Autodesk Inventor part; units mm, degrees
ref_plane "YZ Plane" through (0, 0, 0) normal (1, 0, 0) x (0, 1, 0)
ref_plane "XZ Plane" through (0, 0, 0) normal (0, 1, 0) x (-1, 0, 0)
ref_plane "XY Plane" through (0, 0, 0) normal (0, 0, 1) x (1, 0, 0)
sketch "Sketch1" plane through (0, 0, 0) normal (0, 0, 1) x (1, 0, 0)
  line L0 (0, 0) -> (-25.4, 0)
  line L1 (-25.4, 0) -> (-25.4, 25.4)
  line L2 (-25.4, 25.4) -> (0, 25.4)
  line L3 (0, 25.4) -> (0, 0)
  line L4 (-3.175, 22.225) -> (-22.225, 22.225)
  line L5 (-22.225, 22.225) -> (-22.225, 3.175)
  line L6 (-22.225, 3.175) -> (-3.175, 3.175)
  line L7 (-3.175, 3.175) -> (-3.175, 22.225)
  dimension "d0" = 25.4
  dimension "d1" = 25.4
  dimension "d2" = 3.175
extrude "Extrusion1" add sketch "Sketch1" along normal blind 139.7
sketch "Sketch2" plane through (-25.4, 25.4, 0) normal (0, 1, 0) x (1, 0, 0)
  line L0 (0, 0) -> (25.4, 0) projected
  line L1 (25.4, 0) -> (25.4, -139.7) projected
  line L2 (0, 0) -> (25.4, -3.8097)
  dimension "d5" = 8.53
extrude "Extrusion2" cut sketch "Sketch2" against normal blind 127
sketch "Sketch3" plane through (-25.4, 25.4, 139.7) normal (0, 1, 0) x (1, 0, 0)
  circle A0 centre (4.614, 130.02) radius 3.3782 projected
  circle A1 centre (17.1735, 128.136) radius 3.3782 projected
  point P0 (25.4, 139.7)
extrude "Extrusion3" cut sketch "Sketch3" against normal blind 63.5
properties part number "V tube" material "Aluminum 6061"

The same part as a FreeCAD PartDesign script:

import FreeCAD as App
import Part
import Sketcher
Q = App.Units.Quantity


def add_polygon(sketch, points):
    """Adds a closed chain of lines whose ends are joined by coincident constraints."""
    first, n = sketch.GeometryCount, len(points)
    for a, b in zip(points, points[1:] + points[:1]):
        sketch.addGeometry(Part.LineSegment(App.Vector(*a, 0), App.Vector(*b, 0)), False)
    for i in range(n):
        sketch.addConstraint(Sketcher.Constraint("Coincident", first + i, 2, first + (i + 1) % n, 1))

doc = App.newDocument("Part")
body = doc.addObject("PartDesign::Body", "Body")

# Sketch on XY plane
sketch1 = body.newObject("Sketcher::SketchObject", "Sketch")
sketch1.AttachmentSupport = (doc.getObject("XY_Plane"), [""])
sketch1.MapMode = "FlatFace"
add_polygon(sketch1, [(-25, 0), (0, 0), (0, 25), (-25, 25)])  # lines 0-3
add_polygon(sketch1, [(-22, 22), (-3, 22), (-3, 3), (-22, 3)])  # lines 4-7
sketch1.addConstraint([
    Sketcher.Constraint("Horizontal", 0),
    Sketcher.Constraint("Vertical", 1),
    Sketcher.Constraint("Horizontal", 2),
    Sketcher.Constraint("Vertical", 3),
    Sketcher.Constraint("Horizontal", 4),
    Sketcher.Constraint("Vertical", 5),
    Sketcher.Constraint("Horizontal", 6),
    Sketcher.Constraint("Vertical", 7),
    Sketcher.Constraint("Coincident", 0, 2, -1, 1),
    Sketcher.Constraint("Equal", 2, 1),
    Sketcher.Constraint("Equal", 6, 5),
    Sketcher.Constraint("DistanceX", 0, 1, 0, 2, Q("1 in")),
    Sketcher.Constraint("DistanceX", 4, 2, -1, 1, Q("0.125 in")),
    Sketcher.Constraint("DistanceY", -1, 1, 5, 2, Q("0.125 in")),
    Sketcher.Constraint("DistanceY", 4, 2, 1, 2, Q("0.125 in")),
])
pad1 = body.newObject("PartDesign::Pad", "Pad")
pad1.Profile = sketch1
pad1.Length = Q("5.5 in")

# Sketch on XZ plane
sketch2 = body.newObject("Sketcher::SketchObject", "Sketch001")
sketch2.AttachmentSupport = (doc.getObject("XZ_Plane"), [""])
sketch2.MapMode = "FlatFace"
sketch2.AttachmentOffset = App.Placement(App.Vector(0, 0, -1 * 25.4), App.Rotation())
add_polygon(sketch2, [(0, 0), (-25.4, 0), (0, 3.8)])  # lines 0-2
sketch2.addConstraint([
    Sketcher.Constraint("Horizontal", 0),
    Sketcher.Constraint("Vertical", 2),
    Sketcher.Constraint("Coincident", 2, 2, -1, 1),
    Sketcher.Constraint("DistanceX", 0, 2, 0, 1, Q("1 in")),
    Sketcher.Constraint("Angle", 1, Q("8.53 deg")),
])
pocket1 = body.newObject("PartDesign::Pocket", "Pocket")
pocket1.Profile = sketch2
pocket1.Length = Q("5 in")
pocket1.Reversed = True

# Sketch on XZ plane
sketch3 = body.newObject("Sketcher::SketchObject", "Sketch002")
sketch3.AttachmentSupport = (doc.getObject("XZ_Plane"), [""])
sketch3.MapMode = "FlatFace"
sketch3.AttachmentOffset = App.Placement(App.Vector(0, 0, -1 * 25.4), App.Rotation())
sketch3.addGeometry([
    Part.Circle(App.Vector(-20.8, 9.7, 0), App.Vector(0, 0, 1), 3.4),
    Part.Circle(App.Vector(-8.2, 11.6, 0), App.Vector(0, 0, 1), 3.4),
], False)
sketch3.addConstraint([
    Sketcher.Constraint("Equal", 0, 1),
    Sketcher.Constraint("Diameter", 0, Q("0.266 in")),
    Sketcher.Constraint("DistanceY", -1, 1, 0, 3, Q("0.3811 in")),
    Sketcher.Constraint("DistanceX", 0, 3, -1, 1, Q("20.786 mm")),
    Sketcher.Constraint("DistanceX", 1, 3, -1, 1, Q("8.2265 mm")),
    Sketcher.Constraint("DistanceY", -1, 1, 1, 3, Q("11.564 mm")),
])
pocket2 = body.newObject("PartDesign::Pocket", "Pocket001")
pocket2.Profile = sketch3
pocket2.Length = Q("2.5 in")
pocket2.Reversed = True

doc.recompute()
